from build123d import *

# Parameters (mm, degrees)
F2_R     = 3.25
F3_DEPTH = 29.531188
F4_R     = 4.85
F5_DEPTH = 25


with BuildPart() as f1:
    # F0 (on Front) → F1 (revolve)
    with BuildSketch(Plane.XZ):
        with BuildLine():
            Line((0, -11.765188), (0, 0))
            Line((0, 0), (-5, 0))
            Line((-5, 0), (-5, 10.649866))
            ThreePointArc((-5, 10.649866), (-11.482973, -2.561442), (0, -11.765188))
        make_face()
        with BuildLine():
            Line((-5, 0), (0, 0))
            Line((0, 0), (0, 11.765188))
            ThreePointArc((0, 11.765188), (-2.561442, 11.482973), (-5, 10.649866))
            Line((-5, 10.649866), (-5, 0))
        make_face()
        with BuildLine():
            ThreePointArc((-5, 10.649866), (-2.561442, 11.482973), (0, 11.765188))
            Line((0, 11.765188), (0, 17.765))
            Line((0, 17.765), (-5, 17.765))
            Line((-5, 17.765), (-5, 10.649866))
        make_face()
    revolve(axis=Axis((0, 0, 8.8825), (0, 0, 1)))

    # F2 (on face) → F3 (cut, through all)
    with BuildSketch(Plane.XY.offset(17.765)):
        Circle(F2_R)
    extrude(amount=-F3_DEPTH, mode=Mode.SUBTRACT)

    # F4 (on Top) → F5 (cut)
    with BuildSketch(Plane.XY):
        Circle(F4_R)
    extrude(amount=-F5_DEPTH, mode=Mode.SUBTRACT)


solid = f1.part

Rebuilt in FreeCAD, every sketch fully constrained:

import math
import FreeCAD as App
import Part
import Sketcher

doc = App.newDocument("Part")
params = doc.addObject("Spreadsheet::Sheet", "Params")
for row, (alias, value) in enumerate([
    ("sketch1_width", "5 mm"),
    ("revolution_angle", "360 deg"),
    ("sketch2_diameter", "6.5 mm"),
    ("sketch3_diameter", "9.7 mm"),
    ("pocket2_length", "25 mm"),
], start=1):
    params.set(f"A{row}", alias)
    params.set(f"B{row}", "=" + value)
    params.setAlias(f"B{row}", alias)

body = doc.addObject("PartDesign::Body", "Body")

sketch1 = body.newObject("Sketcher::SketchObject", "Sketch")
sketch1.AttachmentSupport = (doc.getObject("XZ_Plane"), [""])
sketch1.MapMode = "FlatFace"
sketch1.addGeometry(Part.LineSegment(App.Vector(0, -12, 0), App.Vector(0, 18, 0)), False)
sketch1.addGeometry(Part.LineSegment(App.Vector(0, 18, 0), App.Vector(-5, 18, 0)), False)
sketch1.addGeometry(Part.LineSegment(App.Vector(-5, 18, 0), App.Vector(-5, 11, 0)), False)
sketch1.addGeometry(Part.ArcOfCircle(Part.Circle(App.Vector(0, 0, 0), App.Vector(0, 0, 1), 12), math.radians(115), math.radians(270)), False)
sketch1.addConstraint(Sketcher.Constraint("Coincident", 0, 2, 1, 1))
sketch1.addConstraint(Sketcher.Constraint("Coincident", 1, 2, 2, 1))
sketch1.addConstraint(Sketcher.Constraint("Coincident", 2, 2, 3, 1))
sketch1.addConstraint(Sketcher.Constraint("Coincident", 3, 2, 0, 1))
sketch1.addConstraint(Sketcher.Constraint("Vertical", 0))
sketch1.addConstraint(Sketcher.Constraint("Horizontal", 1))
sketch1.addConstraint(Sketcher.Constraint("Vertical", 2))
sketch1.addConstraint(Sketcher.Constraint("Coincident", 3, 3, -1, 1))
sketch1.addConstraint(Sketcher.Constraint("PointOnObject", 0, 2, -2))
sketch1.addConstraint(Sketcher.Constraint("DistanceX", 1, 2, 1, 1, 5.0))
sketch1.addConstraint(Sketcher.Constraint("DistanceY", -1, 1, 0, 2, 17.765))
sketch1.addConstraint(Sketcher.Constraint("Radius", 3, 11.765188))
sketch1.setExpression("Constraints[9]", "Params.sketch1_width")
revolution = body.newObject("PartDesign::Revolution", "Revolution")
revolution.Profile = sketch1
revolution.ReferenceAxis = (sketch1, ["V_Axis"])
revolution.setExpression("Angle", "Params.revolution_angle")

sketch2 = body.newObject("Sketcher::SketchObject", "Sketch001")
sketch2.AttachmentSupport = (doc.getObject("XY_Plane"), [""])
sketch2.MapMode = "FlatFace"
sketch2.AttachmentOffset = App.Placement(App.Vector(0, 0, 17.765), App.Rotation())
sketch2.addGeometry(Part.Circle(App.Vector(0, 0, 0), App.Vector(0, 0, 1), 3.2), False)
sketch2.addConstraint(Sketcher.Constraint("Coincident", 0, 3, -1, 1))
sketch2.addConstraint(Sketcher.Constraint("Diameter", 0, 6.5))
sketch2.setExpression("Constraints[1]", "Params.sketch2_diameter")
pocket1 = body.newObject("PartDesign::Pocket", "Pocket")
pocket1.Profile = sketch2
pocket1.Type = "ThroughAll"

sketch3 = body.newObject("Sketcher::SketchObject", "Sketch002")
sketch3.AttachmentSupport = (doc.getObject("XY_Plane"), [""])
sketch3.MapMode = "FlatFace"
sketch3.addGeometry(Part.Circle(App.Vector(0, 0, 0), App.Vector(0, 0, 1), 4.8), False)
sketch3.addConstraint(Sketcher.Constraint("Coincident", 0, 3, -1, 1))
sketch3.addConstraint(Sketcher.Constraint("Diameter", 0, 9.7))
sketch3.setExpression("Constraints[1]", "Params.sketch3_diameter")
pocket2 = body.newObject("PartDesign::Pocket", "Pocket001")
pocket2.Profile = sketch3
pocket2.setExpression("Length", "Params.pocket2_length")

doc.recompute()
